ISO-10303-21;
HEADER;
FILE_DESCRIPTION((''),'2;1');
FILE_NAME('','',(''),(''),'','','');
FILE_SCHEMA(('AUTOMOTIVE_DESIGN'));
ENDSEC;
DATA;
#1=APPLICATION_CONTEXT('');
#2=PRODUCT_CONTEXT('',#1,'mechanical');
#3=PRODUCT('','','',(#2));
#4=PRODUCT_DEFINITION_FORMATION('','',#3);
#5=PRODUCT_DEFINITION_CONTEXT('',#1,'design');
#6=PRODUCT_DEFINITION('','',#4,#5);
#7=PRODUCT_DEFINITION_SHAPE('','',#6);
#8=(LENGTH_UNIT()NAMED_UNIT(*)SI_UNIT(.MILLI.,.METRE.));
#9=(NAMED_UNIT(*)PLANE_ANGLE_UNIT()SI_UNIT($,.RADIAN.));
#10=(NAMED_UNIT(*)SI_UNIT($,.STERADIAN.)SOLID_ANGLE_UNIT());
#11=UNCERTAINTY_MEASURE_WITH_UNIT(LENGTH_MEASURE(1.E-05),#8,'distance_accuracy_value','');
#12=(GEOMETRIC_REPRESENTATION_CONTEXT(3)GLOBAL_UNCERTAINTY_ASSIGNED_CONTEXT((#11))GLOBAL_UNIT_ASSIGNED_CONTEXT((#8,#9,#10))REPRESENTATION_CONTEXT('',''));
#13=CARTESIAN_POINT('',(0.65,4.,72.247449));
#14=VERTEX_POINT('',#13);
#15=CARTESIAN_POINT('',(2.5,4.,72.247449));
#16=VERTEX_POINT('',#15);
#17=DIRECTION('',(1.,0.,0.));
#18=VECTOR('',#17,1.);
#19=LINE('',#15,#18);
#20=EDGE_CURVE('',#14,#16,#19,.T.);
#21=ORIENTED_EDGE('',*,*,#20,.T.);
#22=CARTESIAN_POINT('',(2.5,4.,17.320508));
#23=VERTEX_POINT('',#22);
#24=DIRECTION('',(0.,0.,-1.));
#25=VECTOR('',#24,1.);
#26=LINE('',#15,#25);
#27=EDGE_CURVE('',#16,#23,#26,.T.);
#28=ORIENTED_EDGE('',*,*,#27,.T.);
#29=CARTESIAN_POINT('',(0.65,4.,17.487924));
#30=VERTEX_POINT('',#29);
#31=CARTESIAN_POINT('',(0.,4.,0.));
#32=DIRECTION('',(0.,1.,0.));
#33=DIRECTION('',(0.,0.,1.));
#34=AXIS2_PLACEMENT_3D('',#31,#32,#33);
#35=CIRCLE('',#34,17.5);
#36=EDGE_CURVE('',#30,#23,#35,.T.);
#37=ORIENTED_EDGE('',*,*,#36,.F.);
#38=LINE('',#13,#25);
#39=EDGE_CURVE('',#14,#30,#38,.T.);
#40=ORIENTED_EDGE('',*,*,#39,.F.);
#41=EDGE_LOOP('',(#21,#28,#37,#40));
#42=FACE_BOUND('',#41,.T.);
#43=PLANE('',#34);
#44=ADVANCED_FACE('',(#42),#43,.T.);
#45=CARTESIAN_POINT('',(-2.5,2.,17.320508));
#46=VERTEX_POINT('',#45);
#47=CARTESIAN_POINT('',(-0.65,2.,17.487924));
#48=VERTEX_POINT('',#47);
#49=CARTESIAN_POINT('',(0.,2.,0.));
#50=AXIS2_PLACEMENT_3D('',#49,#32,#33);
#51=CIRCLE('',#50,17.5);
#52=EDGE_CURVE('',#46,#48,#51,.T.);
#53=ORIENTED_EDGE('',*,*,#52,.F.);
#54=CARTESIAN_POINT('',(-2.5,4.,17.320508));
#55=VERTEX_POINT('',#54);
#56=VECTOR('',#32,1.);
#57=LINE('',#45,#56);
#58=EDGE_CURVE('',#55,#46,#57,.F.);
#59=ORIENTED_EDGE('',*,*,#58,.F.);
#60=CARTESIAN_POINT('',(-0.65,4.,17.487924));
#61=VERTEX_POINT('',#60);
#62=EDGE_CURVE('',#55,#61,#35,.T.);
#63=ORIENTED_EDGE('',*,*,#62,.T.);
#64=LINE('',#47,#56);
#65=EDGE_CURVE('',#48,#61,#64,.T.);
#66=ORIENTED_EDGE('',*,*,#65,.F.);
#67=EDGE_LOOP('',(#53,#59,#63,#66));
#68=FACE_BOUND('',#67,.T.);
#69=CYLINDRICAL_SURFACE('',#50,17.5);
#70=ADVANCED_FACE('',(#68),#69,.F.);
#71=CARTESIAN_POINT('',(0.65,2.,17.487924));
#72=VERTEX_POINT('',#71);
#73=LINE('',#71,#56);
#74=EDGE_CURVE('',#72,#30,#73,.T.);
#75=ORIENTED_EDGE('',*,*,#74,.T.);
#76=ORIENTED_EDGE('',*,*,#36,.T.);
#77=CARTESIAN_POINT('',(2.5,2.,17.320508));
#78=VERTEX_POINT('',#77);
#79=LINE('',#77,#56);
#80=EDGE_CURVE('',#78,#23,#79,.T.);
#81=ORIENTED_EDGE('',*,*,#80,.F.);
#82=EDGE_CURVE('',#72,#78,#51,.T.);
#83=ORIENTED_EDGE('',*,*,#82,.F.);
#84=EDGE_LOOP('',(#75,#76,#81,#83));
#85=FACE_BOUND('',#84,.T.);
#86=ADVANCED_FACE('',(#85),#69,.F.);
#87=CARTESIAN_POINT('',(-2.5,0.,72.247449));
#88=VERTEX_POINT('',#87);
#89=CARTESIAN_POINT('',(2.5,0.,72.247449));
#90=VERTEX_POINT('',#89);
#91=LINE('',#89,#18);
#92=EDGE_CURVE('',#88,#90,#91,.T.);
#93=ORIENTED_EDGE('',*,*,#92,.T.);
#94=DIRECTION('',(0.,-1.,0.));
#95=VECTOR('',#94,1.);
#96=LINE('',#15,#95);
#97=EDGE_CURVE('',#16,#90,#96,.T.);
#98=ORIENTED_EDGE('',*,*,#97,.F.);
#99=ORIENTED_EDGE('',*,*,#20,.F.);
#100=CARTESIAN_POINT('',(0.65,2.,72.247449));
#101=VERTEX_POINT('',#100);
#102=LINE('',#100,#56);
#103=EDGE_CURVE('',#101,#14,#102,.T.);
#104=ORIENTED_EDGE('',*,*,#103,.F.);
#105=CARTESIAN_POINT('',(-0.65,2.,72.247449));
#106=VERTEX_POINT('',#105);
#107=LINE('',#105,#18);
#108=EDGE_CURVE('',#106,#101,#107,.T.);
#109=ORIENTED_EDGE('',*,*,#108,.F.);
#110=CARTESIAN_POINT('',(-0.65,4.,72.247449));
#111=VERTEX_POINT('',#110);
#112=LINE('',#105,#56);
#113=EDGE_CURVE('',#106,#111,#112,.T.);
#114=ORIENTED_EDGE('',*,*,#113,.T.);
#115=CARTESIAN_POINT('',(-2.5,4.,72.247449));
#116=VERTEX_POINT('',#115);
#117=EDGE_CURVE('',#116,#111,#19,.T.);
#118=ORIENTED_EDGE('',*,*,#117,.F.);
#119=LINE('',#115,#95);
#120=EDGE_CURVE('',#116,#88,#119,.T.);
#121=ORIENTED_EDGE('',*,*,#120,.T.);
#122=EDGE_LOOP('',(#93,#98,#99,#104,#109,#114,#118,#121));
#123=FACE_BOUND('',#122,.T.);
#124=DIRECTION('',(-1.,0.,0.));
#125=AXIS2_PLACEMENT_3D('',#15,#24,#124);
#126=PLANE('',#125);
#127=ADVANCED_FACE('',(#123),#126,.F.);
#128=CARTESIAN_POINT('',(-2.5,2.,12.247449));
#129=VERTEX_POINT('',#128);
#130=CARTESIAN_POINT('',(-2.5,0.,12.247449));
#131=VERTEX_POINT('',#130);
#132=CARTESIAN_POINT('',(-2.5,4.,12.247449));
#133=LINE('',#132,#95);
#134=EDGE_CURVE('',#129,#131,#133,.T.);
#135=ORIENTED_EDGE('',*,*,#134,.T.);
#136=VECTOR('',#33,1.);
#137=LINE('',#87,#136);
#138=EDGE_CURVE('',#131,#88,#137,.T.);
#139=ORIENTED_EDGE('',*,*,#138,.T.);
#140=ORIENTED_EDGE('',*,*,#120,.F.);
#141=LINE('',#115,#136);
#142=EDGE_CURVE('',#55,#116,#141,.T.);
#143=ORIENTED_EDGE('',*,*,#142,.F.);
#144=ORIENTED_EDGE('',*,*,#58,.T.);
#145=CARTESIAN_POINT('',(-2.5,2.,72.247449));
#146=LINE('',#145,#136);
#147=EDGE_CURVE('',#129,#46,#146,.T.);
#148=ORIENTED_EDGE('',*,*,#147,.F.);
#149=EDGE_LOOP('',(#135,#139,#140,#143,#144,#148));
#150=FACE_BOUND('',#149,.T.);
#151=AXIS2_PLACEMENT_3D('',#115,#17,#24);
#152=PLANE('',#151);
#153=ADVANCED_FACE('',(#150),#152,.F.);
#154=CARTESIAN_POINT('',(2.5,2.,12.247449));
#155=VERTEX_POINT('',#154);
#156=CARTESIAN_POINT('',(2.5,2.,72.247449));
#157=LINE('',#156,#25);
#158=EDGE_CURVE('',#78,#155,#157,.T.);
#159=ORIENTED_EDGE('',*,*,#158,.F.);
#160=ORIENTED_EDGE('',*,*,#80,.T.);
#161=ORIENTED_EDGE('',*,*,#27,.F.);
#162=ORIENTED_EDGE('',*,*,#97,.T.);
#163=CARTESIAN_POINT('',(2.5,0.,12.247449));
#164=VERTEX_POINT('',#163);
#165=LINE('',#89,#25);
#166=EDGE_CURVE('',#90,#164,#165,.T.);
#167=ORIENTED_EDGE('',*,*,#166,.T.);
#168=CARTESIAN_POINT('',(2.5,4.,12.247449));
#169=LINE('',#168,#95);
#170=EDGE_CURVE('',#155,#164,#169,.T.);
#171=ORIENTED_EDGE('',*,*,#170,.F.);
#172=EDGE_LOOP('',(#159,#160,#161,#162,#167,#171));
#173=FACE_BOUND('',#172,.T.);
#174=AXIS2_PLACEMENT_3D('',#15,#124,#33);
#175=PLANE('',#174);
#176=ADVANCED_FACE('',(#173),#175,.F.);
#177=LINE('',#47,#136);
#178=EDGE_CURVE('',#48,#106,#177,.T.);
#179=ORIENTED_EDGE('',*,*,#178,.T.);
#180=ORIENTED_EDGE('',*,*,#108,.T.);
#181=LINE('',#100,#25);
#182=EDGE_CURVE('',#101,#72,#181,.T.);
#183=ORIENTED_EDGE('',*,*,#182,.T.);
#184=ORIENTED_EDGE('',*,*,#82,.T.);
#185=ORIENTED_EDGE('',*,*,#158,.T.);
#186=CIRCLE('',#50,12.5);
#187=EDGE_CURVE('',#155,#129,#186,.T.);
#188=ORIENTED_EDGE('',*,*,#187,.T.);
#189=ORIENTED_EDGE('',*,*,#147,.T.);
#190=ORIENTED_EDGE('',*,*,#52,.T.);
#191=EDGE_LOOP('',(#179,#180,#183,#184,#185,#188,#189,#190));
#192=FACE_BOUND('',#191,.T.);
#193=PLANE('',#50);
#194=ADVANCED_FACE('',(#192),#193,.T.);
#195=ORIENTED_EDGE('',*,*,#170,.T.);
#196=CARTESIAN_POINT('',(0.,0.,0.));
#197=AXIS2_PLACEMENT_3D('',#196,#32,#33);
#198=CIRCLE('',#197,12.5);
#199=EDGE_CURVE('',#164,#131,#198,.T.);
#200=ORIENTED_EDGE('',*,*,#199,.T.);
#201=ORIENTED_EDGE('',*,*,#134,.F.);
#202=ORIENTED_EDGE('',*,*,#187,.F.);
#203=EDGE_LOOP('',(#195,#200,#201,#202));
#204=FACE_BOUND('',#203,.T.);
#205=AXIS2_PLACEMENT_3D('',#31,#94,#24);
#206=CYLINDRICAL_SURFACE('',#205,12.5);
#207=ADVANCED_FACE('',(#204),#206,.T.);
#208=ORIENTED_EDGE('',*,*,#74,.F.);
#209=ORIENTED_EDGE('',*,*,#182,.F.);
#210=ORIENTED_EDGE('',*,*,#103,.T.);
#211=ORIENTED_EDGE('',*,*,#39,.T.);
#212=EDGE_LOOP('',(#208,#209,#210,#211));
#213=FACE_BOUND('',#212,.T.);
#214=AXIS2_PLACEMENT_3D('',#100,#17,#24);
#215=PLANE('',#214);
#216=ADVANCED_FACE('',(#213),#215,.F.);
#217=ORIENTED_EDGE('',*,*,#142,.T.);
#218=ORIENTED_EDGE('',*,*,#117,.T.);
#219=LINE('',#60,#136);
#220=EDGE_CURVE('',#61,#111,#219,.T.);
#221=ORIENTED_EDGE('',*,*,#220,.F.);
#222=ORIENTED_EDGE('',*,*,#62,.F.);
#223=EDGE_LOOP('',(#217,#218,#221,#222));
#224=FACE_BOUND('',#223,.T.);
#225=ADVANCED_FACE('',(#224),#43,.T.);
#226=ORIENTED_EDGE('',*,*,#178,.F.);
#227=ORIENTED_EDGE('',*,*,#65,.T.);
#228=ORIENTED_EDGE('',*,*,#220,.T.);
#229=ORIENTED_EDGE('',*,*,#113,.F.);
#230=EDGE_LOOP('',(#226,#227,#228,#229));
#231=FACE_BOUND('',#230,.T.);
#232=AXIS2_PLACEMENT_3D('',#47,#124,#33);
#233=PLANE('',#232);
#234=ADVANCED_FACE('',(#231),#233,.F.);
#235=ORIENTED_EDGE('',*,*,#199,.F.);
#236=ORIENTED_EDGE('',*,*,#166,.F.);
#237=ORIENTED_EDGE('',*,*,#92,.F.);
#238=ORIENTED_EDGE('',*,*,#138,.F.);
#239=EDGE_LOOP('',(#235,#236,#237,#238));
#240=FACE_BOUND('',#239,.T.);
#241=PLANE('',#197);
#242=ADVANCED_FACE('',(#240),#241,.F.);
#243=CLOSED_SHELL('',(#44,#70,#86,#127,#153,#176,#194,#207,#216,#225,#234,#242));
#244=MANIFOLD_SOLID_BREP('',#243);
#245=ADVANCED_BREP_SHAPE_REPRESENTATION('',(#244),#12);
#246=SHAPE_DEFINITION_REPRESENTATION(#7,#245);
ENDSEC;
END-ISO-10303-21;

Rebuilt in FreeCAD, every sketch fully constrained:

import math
import FreeCAD as App
import Part
import Sketcher
from FreeCAD import Vector
Q = App.Units.Quantity

doc = App.newDocument("Part")
params = doc.addObject("Spreadsheet::Sheet", "Params")
for row, (alias, value) in enumerate([
    ("sketch1_radius", "12.5 mm"),
    ("sketch1_width", "5 mm"),
    ("sketch1_height", "60 mm"),
    ("pad1_length", "4 mm"),
    ("sketch2_diameter", "35 mm"),
    ("pocket1_length", "2 mm"),
    ("sketch3_radius", "17.5 mm"),
    ("sketch3_width", "1.3 mm"),
    ("pocket2_length", "2 mm"),
], start=1):
    params.set(f"A{row}", alias)
    params.set(f"B{row}", "=" + value)
    params.setAlias(f"B{row}", alias)

body = doc.addObject("PartDesign::Body", "Body")

# Sketch on XZ plane
sketch1 = body.newObject("Sketcher::SketchObject", "Sketch")
sketch1.AttachmentSupport = (doc.getObject("XZ_Plane"), [""])
sketch1.MapMode = "FlatFace"
sketch1.addGeometry([
    Part.LineSegment(Vector(-2.5, 72.247449, 0), Vector(2.5, 72.247449, 0)),
    Part.LineSegment(Vector(2.5, 72.247449, 0), Vector(2.5, 12.247449, 0)),
    Part.ArcOfCircle(Part.Circle(Vector(0, 0, 0), Vector(0, 0, 1), 12.5), math.radians(101.536959), math.radians(438.463041)),
    Part.LineSegment(Vector(-2.5, 12.247449, 0), Vector(-2.5, 72.247449, 0)),
], False)
sketch1.addConstraint([
    Sketcher.Constraint("Coincident", 0, 2, 1, 1),
    Sketcher.Constraint("Coincident", 1, 2, 2, 2),
    Sketcher.Constraint("Coincident", 2, 1, 3, 1),
    Sketcher.Constraint("Coincident", 3, 2, 0, 1),
    Sketcher.Constraint("Horizontal", 0),
    Sketcher.Constraint("Vertical", 1),
    Sketcher.Constraint("Vertical", 3),
    Sketcher.Constraint("Coincident", 2, 3, -1, 1),
    Sketcher.Constraint("Horizontal", 1, 2, 2, 1),
    Sketcher.Constraint("Radius", 2, Q("12.5 mm")),
    Sketcher.Constraint("DistanceX", 0, 1, 0, 2, Q("5 mm")),
    Sketcher.Constraint("DistanceY", 1, 2, 1, 1, Q("60 mm")),
])
sketch1.setExpression("Constraints[9]", "Params.sketch1_radius")
sketch1.setExpression("Constraints[10]", "Params.sketch1_width")
sketch1.setExpression("Constraints[11]", "Params.sketch1_height")
pad1 = body.newObject("PartDesign::Pad", "Pad")
pad1.Profile = sketch1
pad1.setExpression("Length", "Params.pad1_length")
pad1.Reversed = True

# Sketch on XZ plane
sketch2 = body.newObject("Sketcher::SketchObject", "Sketch001")
sketch2.AttachmentSupport = (doc.getObject("XZ_Plane"), [""])
sketch2.MapMode = "FlatFace"
sketch2.AttachmentOffset = App.Placement(Vector(0, 0, -4), App.Rotation())
sketch2.addGeometry(Part.Circle(Vector(0, 0, 0), Vector(0, 0, 1), 17.5), False)
sketch2.addConstraint([
    Sketcher.Constraint("Coincident", 0, 3, -1, 1),
    Sketcher.Constraint("Diameter", 0, Q("35 mm")),
])
sketch2.setExpression("Constraints[1]", "Params.sketch2_diameter")
pocket1 = body.newObject("PartDesign::Pocket", "Pocket")
pocket1.Profile = sketch2
pocket1.setExpression("Length", "Params.pocket1_length")
pocket1.Reversed = True

# Sketch on XZ plane
sketch3 = body.newObject("Sketcher::SketchObject", "Sketch002")
sketch3.AttachmentSupport = (doc.getObject("XZ_Plane"), [""])
sketch3.MapMode = "FlatFace"
sketch3.AttachmentOffset = App.Placement(Vector(0, 0, -4), App.Rotation())
sketch3.addGeometry([
    Part.LineSegment(Vector(-0.65, 17.487924, 0), Vector(-0.65, 72.247449, 0)),
    Part.LineSegment(Vector(-0.65, 72.247449, 0), Vector(0.65, 72.247449, 0)),
    Part.LineSegment(Vector(0.65, 72.247449, 0), Vector(0.65, 17.487924, 0)),
    Part.ArcOfCircle(Part.Circle(Vector(0, 0, 0), Vector(0, 0, 1), 17.5), math.radians(87.871381), math.radians(92.128619)),
], False)
sketch3.addConstraint([
    Sketcher.Constraint("Coincident", 0, 2, 1, 1),
    Sketcher.Constraint("Coincident", 1, 2, 2, 1),
    Sketcher.Constraint("Coincident", 2, 2, 3, 1),
    Sketcher.Constraint("Coincident", 3, 2, 0, 1),
    Sketcher.Constraint("Vertical", 0),
    Sketcher.Constraint("Horizontal", 1),
    Sketcher.Constraint("Vertical", 2),
    Sketcher.Constraint("Coincident", 3, 3, -1, 1),
    Sketcher.Constraint("Horizontal", 2, 2, 3, 2),
    Sketcher.Constraint("Radius", 3, Q("17.5 mm")),
    Sketcher.Constraint("DistanceX", 1, 1, 1, 2, Q("1.3 mm")),
    Sketcher.Constraint("DistanceY", 0, 1, 0, 2, Q("54.759524 mm")),
])
sketch3.setExpression("Constraints[9]", "Params.sketch3_radius")
sketch3.setExpression("Constraints[10]", "Params.sketch3_width")
pocket2 = body.newObject("PartDesign::Pocket", "Pocket001")
pocket2.Profile = sketch3
pocket2.setExpression("Length", "Params.pocket2_length")
pocket2.Reversed = True

doc.recompute()
